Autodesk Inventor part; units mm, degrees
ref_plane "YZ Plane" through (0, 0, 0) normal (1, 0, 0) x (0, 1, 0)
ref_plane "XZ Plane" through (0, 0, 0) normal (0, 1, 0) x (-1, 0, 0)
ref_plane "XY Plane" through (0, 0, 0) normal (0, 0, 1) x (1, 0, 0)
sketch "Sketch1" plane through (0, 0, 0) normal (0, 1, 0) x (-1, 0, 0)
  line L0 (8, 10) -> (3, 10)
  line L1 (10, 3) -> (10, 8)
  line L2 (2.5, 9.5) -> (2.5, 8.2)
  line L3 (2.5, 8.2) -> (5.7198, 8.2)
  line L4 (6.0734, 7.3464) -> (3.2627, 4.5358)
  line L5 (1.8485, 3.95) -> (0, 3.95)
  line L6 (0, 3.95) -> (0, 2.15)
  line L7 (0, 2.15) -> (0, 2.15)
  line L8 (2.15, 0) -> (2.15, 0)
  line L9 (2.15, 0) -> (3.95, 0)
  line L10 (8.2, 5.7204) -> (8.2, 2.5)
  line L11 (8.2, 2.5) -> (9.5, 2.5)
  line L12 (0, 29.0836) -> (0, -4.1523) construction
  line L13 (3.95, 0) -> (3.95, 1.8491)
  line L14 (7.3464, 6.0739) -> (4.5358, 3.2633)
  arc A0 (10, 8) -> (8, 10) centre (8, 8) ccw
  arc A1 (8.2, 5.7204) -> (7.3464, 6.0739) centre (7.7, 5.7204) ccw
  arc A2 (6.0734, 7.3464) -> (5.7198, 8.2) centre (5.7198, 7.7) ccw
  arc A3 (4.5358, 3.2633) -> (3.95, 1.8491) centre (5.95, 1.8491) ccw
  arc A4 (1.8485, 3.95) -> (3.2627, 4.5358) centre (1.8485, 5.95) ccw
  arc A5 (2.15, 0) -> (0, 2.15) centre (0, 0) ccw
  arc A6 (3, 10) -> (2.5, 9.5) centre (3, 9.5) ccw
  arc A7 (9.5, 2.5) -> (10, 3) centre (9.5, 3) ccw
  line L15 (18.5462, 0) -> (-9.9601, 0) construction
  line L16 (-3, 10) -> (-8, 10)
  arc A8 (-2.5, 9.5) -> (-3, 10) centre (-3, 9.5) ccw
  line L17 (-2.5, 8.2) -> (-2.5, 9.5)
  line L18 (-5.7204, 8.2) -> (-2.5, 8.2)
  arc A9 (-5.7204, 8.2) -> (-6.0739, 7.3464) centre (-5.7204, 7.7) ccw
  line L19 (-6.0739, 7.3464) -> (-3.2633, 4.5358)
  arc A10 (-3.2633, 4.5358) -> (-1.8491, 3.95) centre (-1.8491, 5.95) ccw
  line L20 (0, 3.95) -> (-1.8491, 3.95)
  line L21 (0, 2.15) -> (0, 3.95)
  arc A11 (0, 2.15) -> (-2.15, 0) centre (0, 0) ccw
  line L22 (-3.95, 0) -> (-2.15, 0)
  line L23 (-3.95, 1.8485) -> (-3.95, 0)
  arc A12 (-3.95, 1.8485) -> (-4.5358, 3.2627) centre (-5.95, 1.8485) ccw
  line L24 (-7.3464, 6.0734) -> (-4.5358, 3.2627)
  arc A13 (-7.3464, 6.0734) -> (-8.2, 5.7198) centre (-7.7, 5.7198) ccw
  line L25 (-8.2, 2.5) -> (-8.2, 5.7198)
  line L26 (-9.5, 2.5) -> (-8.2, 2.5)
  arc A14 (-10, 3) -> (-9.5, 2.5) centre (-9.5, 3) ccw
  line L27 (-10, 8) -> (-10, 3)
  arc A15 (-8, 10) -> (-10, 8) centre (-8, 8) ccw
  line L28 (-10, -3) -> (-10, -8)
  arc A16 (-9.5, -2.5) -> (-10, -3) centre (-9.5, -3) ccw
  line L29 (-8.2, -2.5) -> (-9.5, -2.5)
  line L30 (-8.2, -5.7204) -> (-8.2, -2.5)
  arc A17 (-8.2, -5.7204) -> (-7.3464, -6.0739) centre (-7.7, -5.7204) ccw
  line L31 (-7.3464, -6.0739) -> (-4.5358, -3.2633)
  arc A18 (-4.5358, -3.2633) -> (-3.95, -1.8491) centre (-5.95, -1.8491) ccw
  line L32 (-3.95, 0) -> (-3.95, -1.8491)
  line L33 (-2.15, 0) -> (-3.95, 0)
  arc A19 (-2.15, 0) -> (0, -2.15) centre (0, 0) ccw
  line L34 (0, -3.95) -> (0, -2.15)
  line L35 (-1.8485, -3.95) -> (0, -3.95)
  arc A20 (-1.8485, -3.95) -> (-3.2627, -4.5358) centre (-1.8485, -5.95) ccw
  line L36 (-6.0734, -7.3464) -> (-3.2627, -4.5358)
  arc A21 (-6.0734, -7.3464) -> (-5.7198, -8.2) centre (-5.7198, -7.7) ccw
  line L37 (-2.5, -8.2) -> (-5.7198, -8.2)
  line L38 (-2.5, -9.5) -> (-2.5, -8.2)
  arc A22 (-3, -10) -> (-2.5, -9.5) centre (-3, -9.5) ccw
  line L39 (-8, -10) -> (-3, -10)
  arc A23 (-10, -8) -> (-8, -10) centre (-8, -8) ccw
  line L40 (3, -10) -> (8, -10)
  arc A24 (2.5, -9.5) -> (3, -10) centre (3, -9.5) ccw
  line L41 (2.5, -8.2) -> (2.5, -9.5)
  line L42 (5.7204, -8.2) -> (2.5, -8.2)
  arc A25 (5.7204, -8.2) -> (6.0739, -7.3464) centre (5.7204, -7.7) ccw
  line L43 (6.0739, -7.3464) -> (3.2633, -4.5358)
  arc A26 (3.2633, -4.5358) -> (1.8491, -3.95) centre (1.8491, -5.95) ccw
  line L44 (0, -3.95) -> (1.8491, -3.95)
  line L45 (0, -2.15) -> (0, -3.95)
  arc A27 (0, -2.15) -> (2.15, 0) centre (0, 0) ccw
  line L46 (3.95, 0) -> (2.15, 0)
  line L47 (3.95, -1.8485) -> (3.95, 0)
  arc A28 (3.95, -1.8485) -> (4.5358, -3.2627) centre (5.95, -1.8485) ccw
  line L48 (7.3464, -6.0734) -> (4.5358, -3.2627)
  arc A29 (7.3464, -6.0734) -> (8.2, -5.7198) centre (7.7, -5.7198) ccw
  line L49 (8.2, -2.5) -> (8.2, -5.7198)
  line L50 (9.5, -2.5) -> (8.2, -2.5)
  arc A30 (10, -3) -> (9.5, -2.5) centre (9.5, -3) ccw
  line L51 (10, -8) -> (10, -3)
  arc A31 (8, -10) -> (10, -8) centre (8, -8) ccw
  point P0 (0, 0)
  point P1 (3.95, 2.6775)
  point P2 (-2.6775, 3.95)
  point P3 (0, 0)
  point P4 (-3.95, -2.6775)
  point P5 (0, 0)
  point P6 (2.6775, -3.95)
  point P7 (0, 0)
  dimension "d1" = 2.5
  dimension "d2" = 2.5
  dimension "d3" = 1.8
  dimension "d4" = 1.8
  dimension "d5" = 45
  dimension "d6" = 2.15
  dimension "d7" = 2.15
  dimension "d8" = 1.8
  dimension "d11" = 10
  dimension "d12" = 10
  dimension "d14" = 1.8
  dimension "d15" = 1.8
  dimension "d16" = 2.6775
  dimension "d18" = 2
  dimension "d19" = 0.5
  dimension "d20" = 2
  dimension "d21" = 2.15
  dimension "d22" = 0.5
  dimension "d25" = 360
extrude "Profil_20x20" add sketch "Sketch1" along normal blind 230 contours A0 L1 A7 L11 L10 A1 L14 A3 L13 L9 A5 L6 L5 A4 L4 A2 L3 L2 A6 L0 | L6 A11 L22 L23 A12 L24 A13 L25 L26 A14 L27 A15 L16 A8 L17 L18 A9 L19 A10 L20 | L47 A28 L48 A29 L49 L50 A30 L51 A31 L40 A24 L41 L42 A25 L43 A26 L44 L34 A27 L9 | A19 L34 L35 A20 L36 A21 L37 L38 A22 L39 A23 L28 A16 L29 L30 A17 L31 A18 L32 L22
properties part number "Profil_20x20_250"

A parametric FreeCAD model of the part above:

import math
import FreeCAD as App
import Part
import Sketcher
Q = App.Units.Quantity

doc = App.newDocument("Part")
body = doc.addObject("PartDesign::Body", "Body")

sketch1 = body.newObject("Sketcher::SketchObject", "Sketch")
sketch1.AttachmentSupport = (doc.getObject("XZ_Plane"), [""])
sketch1.MapMode = "FlatFace"
sketch1.addGeometry([
    Part.ArcOfCircle(Part.Circle(App.Vector(-8, 8, 0), App.Vector(0, 0, 1), 2), math.radians(90), math.radians(180)),
    Part.LineSegment(App.Vector(-8, 10, 0), App.Vector(-3, 10, 0)),
    Part.ArcOfCircle(Part.Circle(App.Vector(-3, 9.5, 0), App.Vector(0, 0, 1), 0.5), math.radians(0), math.radians(90)),
    Part.LineSegment(App.Vector(-2.5, 9.5, 0), App.Vector(-2.5, 8.2, 0)),
    Part.LineSegment(App.Vector(-2.5, 8.2, 0), App.Vector(-5.72, 8.2, 0)),
    Part.ArcOfCircle(Part.Circle(App.Vector(-5.72, 7.7, 0), App.Vector(0, 0, 1), 0.5), math.radians(90), math.radians(225)),
    Part.LineSegment(App.Vector(-6.07, 7.35, 0), App.Vector(-3.26, 4.54, 0)),
    Part.ArcOfCircle(Part.Circle(App.Vector(-1.85, 5.95, 0), App.Vector(0, 0, 1), 2), math.radians(-135), math.radians(-90)),
    Part.LineSegment(App.Vector(-1.85, 3.95, 0), App.Vector(1.85, 3.95, 0)),
    Part.ArcOfCircle(Part.Circle(App.Vector(1.85, 5.95, 0), App.Vector(0, 0, 1), 2), math.radians(-90), math.radians(-45)),
    Part.LineSegment(App.Vector(3.26, 4.54, 0), App.Vector(6.07, 7.35, 0)),
    Part.ArcOfCircle(Part.Circle(App.Vector(5.72, 7.7, 0), App.Vector(0, 0, 1), 0.5), math.radians(-45), math.radians(90)),
    Part.LineSegment(App.Vector(5.72, 8.2, 0), App.Vector(2.5, 8.2, 0)),
    Part.LineSegment(App.Vector(2.5, 8.2, 0), App.Vector(2.5, 9.5, 0)),
    Part.ArcOfCircle(Part.Circle(App.Vector(3, 9.5, 0), App.Vector(0, 0, 1), 0.5), math.radians(90), math.radians(180)),
    Part.LineSegment(App.Vector(3, 10, 0), App.Vector(8, 10, 0)),
    Part.ArcOfCircle(Part.Circle(App.Vector(8, 8, 0), App.Vector(0, 0, 1), 2), math.radians(0), math.radians(90)),
    Part.LineSegment(App.Vector(10, 8, 0), App.Vector(10, 3, 0)),
    Part.ArcOfCircle(Part.Circle(App.Vector(9.5, 3, 0), App.Vector(0, 0, 1), 0.5), math.radians(-90), math.radians(0)),
    Part.LineSegment(App.Vector(9.5, 2.5, 0), App.Vector(8.2, 2.5, 0)),
    Part.LineSegment(App.Vector(8.2, 2.5, 0), App.Vector(8.2, 5.72, 0)),
    Part.ArcOfCircle(Part.Circle(App.Vector(7.7, 5.72, 0), App.Vector(0, 0, 1), 0.5), math.radians(0), math.radians(135)),
    Part.LineSegment(App.Vector(7.35, 6.07, 0), App.Vector(4.54, 3.26, 0)),
    Part.ArcOfCircle(Part.Circle(App.Vector(5.95, 1.85, 0), App.Vector(0, 0, 1), 2), math.radians(135), math.radians(180)),
    Part.LineSegment(App.Vector(3.95, 1.85, 0), App.Vector(3.95, -1.85, 0)),
    Part.ArcOfCircle(Part.Circle(App.Vector(5.95, -1.85, 0), App.Vector(0, 0, 1), 2), math.radians(180), math.radians(225)),
    Part.LineSegment(App.Vector(4.54, -3.26, 0), App.Vector(7.35, -6.07, 0)),
    Part.ArcOfCircle(Part.Circle(App.Vector(7.7, -5.72, 0), App.Vector(0, 0, 1), 0.5), math.radians(-135), math.radians(0)),
    Part.LineSegment(App.Vector(8.2, -5.72, 0), App.Vector(8.2, -2.5, 0)),
    Part.LineSegment(App.Vector(8.2, -2.5, 0), App.Vector(9.5, -2.5, 0)),
    Part.ArcOfCircle(Part.Circle(App.Vector(9.5, -3, 0), App.Vector(0, 0, 1), 0.5), math.radians(0), math.radians(90)),
    Part.LineSegment(App.Vector(10, -3, 0), App.Vector(10, -8, 0)),
    Part.ArcOfCircle(Part.Circle(App.Vector(8, -8, 0), App.Vector(0, 0, 1), 2), math.radians(-90), math.radians(0)),
    Part.LineSegment(App.Vector(8, -10, 0), App.Vector(3, -10, 0)),
    Part.ArcOfCircle(Part.Circle(App.Vector(3, -9.5, 0), App.Vector(0, 0, 1), 0.5), math.radians(180), math.radians(270)),
    Part.LineSegment(App.Vector(2.5, -9.5, 0), App.Vector(2.5, -8.2, 0)),
    Part.LineSegment(App.Vector(2.5, -8.2, 0), App.Vector(5.72, -8.2, 0)),
    Part.ArcOfCircle(Part.Circle(App.Vector(5.72, -7.7, 0), App.Vector(0, 0, 1), 0.5), math.radians(-90), math.radians(45)),
    Part.LineSegment(App.Vector(6.07, -7.35, 0), App.Vector(3.26, -4.54, 0)),
    Part.ArcOfCircle(Part.Circle(App.Vector(1.85, -5.95, 0), App.Vector(0, 0, 1), 2), math.radians(45), math.radians(90)),
    Part.LineSegment(App.Vector(1.85, -3.95, 0), App.Vector(-1.85, -3.95, 0)),
    Part.ArcOfCircle(Part.Circle(App.Vector(-1.85, -5.95, 0), App.Vector(0, 0, 1), 2), math.radians(90), math.radians(135)),
    Part.LineSegment(App.Vector(-3.26, -4.54, 0), App.Vector(-6.07, -7.35, 0)),
    Part.ArcOfCircle(Part.Circle(App.Vector(-5.72, -7.7, 0), App.Vector(0, 0, 1), 0.5), math.radians(135), math.radians(270)),
    Part.LineSegment(App.Vector(-5.72, -8.2, 0), App.Vector(-2.5, -8.2, 0)),
    Part.LineSegment(App.Vector(-2.5, -8.2, 0), App.Vector(-2.5, -9.5, 0)),
    Part.ArcOfCircle(Part.Circle(App.Vector(-3, -9.5, 0), App.Vector(0, 0, 1), 0.5), math.radians(-90), math.radians(0)),
    Part.LineSegment(App.Vector(-3, -10, 0), App.Vector(-8, -10, 0)),
    Part.ArcOfCircle(Part.Circle(App.Vector(-8, -8, 0), App.Vector(0, 0, 1), 2), math.radians(180), math.radians(270)),
    Part.LineSegment(App.Vector(-10, -8, 0), App.Vector(-10, -3, 0)),
    Part.ArcOfCircle(Part.Circle(App.Vector(-9.5, -3, 0), App.Vector(0, 0, 1), 0.5), math.radians(90), math.radians(180)),
    Part.LineSegment(App.Vector(-9.5, -2.5, 0), App.Vector(-8.2, -2.5, 0)),
    Part.LineSegment(App.Vector(-8.2, -2.5, 0), App.Vector(-8.2, -5.72, 0)),
    Part.ArcOfCircle(Part.Circle(App.Vector(-7.7, -5.72, 0), App.Vector(0, 0, 1), 0.5), math.radians(180), math.radians(315)),
    Part.LineSegment(App.Vector(-7.35, -6.07, 0), App.Vector(-4.54, -3.26, 0)),
    Part.ArcOfCircle(Part.Circle(App.Vector(-5.95, -1.85, 0), App.Vector(0, 0, 1), 2), math.radians(-45), math.radians(0)),
    Part.LineSegment(App.Vector(-3.95, -1.85, 0), App.Vector(-3.95, 1.85, 0)),
    Part.ArcOfCircle(Part.Circle(App.Vector(-5.95, 1.85, 0), App.Vector(0, 0, 1), 2), math.radians(0), math.radians(45)),
    Part.LineSegment(App.Vector(-4.54, 3.26, 0), App.Vector(-7.35, 6.07, 0)),
    Part.ArcOfCircle(Part.Circle(App.Vector(-7.7, 5.72, 0), App.Vector(0, 0, 1), 0.5), math.radians(45), math.radians(180)),
    Part.LineSegment(App.Vector(-8.2, 5.72, 0), App.Vector(-8.2, 2.5, 0)),
    Part.LineSegment(App.Vector(-8.2, 2.5, 0), App.Vector(-9.5, 2.5, 0)),
    Part.ArcOfCircle(Part.Circle(App.Vector(-9.5, 3, 0), App.Vector(0, 0, 1), 0.5), math.radians(180), math.radians(270)),
    Part.LineSegment(App.Vector(-10, 3, 0), App.Vector(-10, 8, 0)),
    Part.Circle(App.Vector(0, 0, 0), App.Vector(0, 0, 1), 2.15),
], False)
sketch1.addConstraint([
    Sketcher.Constraint("Tangent", 0, 1, 1, 1),
    Sketcher.Constraint("Tangent", 1, 2, 2, 2),
    Sketcher.Constraint("Tangent", 2, 1, 3, 1),
    Sketcher.Constraint("Coincident", 3, 2, 4, 1),
    Sketcher.Constraint("Tangent", 4, 2, 5, 1),
    Sketcher.Constraint("Tangent", 5, 2, 6, 1),
    Sketcher.Constraint("Tangent", 6, 2, 7, 1),
    Sketcher.Constraint("Tangent", 7, 2, 8, 1),
    Sketcher.Constraint("Tangent", 8, 2, 9, 1),
    Sketcher.Constraint("Tangent", 9, 2, 10, 1),
    Sketcher.Constraint("Tangent", 10, 2, 11, 1),
    Sketcher.Constraint("Tangent", 11, 2, 12, 1),
    Sketcher.Constraint("Coincident", 12, 2, 13, 1),
    Sketcher.Constraint("Tangent", 13, 2, 14, 2),
    Sketcher.Constraint("Tangent", 14, 1, 15, 1),
    Sketcher.Constraint("Tangent", 15, 2, 16, 2),
    Sketcher.Constraint("Tangent", 16, 1, 17, 1),
    Sketcher.Constraint("Tangent", 17, 2, 18, 2),
    Sketcher.Constraint("Tangent", 18, 1, 19, 1),
    Sketcher.Constraint("Coincident", 19, 2, 20, 1),
    Sketcher.Constraint("Tangent", 20, 2, 21, 1),
    Sketcher.Constraint("Tangent", 21, 2, 22, 1),
    Sketcher.Constraint("Tangent", 22, 2, 23, 1),
    Sketcher.Constraint("Tangent", 23, 2, 24, 1),
    Sketcher.Constraint("Tangent", 24, 2, 25, 1),
    Sketcher.Constraint("Tangent", 25, 2, 26, 1),
    Sketcher.Constraint("Tangent", 26, 2, 27, 1),
    Sketcher.Constraint("Tangent", 27, 2, 28, 1),
    Sketcher.Constraint("Coincident", 28, 2, 29, 1),
    Sketcher.Constraint("Tangent", 29, 2, 30, 2),
    Sketcher.Constraint("Tangent", 30, 1, 31, 1),
    Sketcher.Constraint("Tangent", 31, 2, 32, 2),
    Sketcher.Constraint("Tangent", 32, 1, 33, 1),
    Sketcher.Constraint("Tangent", 33, 2, 34, 2),
    Sketcher.Constraint("Tangent", 34, 1, 35, 1),
    Sketcher.Constraint("Coincident", 35, 2, 36, 1),
    Sketcher.Constraint("Tangent", 36, 2, 37, 1),
    Sketcher.Constraint("Tangent", 37, 2, 38, 1),
    Sketcher.Constraint("Tangent", 38, 2, 39, 1),
    Sketcher.Constraint("Tangent", 39, 2, 40, 1),
    Sketcher.Constraint("Tangent", 40, 2, 41, 1),
    Sketcher.Constraint("Tangent", 41, 2, 42, 1),
    Sketcher.Constraint("Tangent", 42, 2, 43, 1),
    Sketcher.Constraint("Tangent", 43, 2, 44, 1),
    Sketcher.Constraint("Coincident", 44, 2, 45, 1),
    Sketcher.Constraint("Tangent", 45, 2, 46, 2),
    Sketcher.Constraint("Tangent", 46, 1, 47, 1),
    Sketcher.Constraint("Tangent", 47, 2, 48, 2),
    Sketcher.Constraint("Tangent", 48, 1, 49, 1),
    Sketcher.Constraint("Tangent", 49, 2, 50, 2),
    Sketcher.Constraint("Tangent", 50, 1, 51, 1),
    Sketcher.Constraint("Coincident", 51, 2, 52, 1),
    Sketcher.Constraint("Tangent", 52, 2, 53, 1),
    Sketcher.Constraint("Tangent", 53, 2, 54, 1),
    Sketcher.Constraint("Tangent", 54, 2, 55, 1),
    Sketcher.Constraint("Tangent", 55, 2, 56, 1),
    Sketcher.Constraint("Tangent", 56, 2, 57, 1),
    Sketcher.Constraint("Tangent", 57, 2, 58, 1),
    Sketcher.Constraint("Tangent", 58, 2, 59, 1),
    Sketcher.Constraint("Tangent", 59, 2, 60, 1),
    Sketcher.Constraint("Coincident", 60, 2, 61, 1),
    Sketcher.Constraint("Tangent", 61, 2, 62, 2),
    Sketcher.Constraint("Tangent", 62, 1, 63, 1),
    Sketcher.Constraint("Tangent", 63, 2, 0, 2),
    Sketcher.Constraint("Horizontal", 1),
    Sketcher.Constraint("Vertical", 3),
    Sketcher.Constraint("Horizontal", 4),
    Sketcher.Constraint("Horizontal", 8),
    Sketcher.Constraint("Horizontal", 12),
    Sketcher.Constraint("Vertical", 13),
    Sketcher.Constraint("Horizontal", 15),
    Sketcher.Constraint("Vertical", 17),
    Sketcher.Constraint("Horizontal", 19),
    Sketcher.Constraint("Vertical", 20),
    Sketcher.Constraint("Vertical", 24),
    Sketcher.Constraint("Vertical", 28),
    Sketcher.Constraint("Horizontal", 29),
    Sketcher.Constraint("Vertical", 31),
    Sketcher.Constraint("Horizontal", 33),
    Sketcher.Constraint("Vertical", 35),
    Sketcher.Constraint("Horizontal", 36),
    Sketcher.Constraint("Horizontal", 40),
    Sketcher.Constraint("Horizontal", 44),
    Sketcher.Constraint("Vertical", 45),
    Sketcher.Constraint("Horizontal", 47),
    Sketcher.Constraint("Vertical", 49),
    Sketcher.Constraint("Horizontal", 51),
    Sketcher.Constraint("Vertical", 52),
    Sketcher.Constraint("Vertical", 56),
    Sketcher.Constraint("Vertical", 60),
    Sketcher.Constraint("Horizontal", 61),
    Sketcher.Constraint("Vertical", 63),
    Sketcher.Constraint("Coincident", 64, 3, -1, 1),
    Sketcher.Constraint("Equal", 2, 5),
    Sketcher.Constraint("Equal", 0, 7),
    Sketcher.Constraint("Equal", 7, 9),
    Sketcher.Constraint("Equal", 5, 11),
    Sketcher.Constraint("Equal", 11, 14),
    Sketcher.Constraint("Equal", 9, 16),
    Sketcher.Constraint("Equal", 14, 18),
    Sketcher.Constraint("Equal", 18, 21),
    Sketcher.Constraint("Equal", 16, 23),
    Sketcher.Constraint("Equal", 23, 25),
    Sketcher.Constraint("Equal", 21, 27),
    Sketcher.Constraint("Equal", 27, 30),
    Sketcher.Constraint("Equal", 25, 32),
    Sketcher.Constraint("Equal", 30, 34),
    Sketcher.Constraint("Equal", 34, 37),
    Sketcher.Constraint("Equal", 32, 39),
    Sketcher.Constraint("Equal", 39, 41),
    Sketcher.Constraint("Equal", 37, 43),
    Sketcher.Constraint("Equal", 43, 46),
    Sketcher.Constraint("Equal", 41, 48),
    Sketcher.Constraint("Equal", 46, 50),
    Sketcher.Constraint("Equal", 50, 53),
    Sketcher.Constraint("Equal", 48, 55),
    Sketcher.Constraint("Equal", 55, 57),
    Sketcher.Constraint("Equal", 53, 59),
    Sketcher.Constraint("Equal", 59, 62),
    Sketcher.Constraint("Symmetric", 0, 3, 32, 3, -1, 1),
    Sketcher.Constraint("Symmetric", 5, 3, 37, 3, -1, 1),
    Sketcher.Constraint("Symmetric", 7, 3, 39, 3, -1, 1),
    Sketcher.Constraint("Symmetric", 11, 3, 43, 3, -1, 1),
    Sketcher.Constraint("Symmetric", 14, 3, 46, 3, -1, 1),
    Sketcher.Constraint("Symmetric", 18, 3, 50, 3, -1, 1),
    Sketcher.Constraint("Symmetric", 21, 3, 53, 3, -1, 1),
    Sketcher.Constraint("Symmetric", 23, 3, 55, 3, -1, 1),
    Sketcher.Constraint("Symmetric", 27, 3, 59, 3, -1, 1),
    Sketcher.Constraint("Symmetric", 2, 3, 14, 3, -2),
    Sketcher.Constraint("Symmetric", 30, 3, 50, 3, -2),
    Sketcher.Constraint("Symmetric", 35, 2, 44, 2, -2),
    Sketcher.Constraint("Symmetric", 19, 2, 60, 2, -2),
    Sketcher.Constraint("Perpendicular", 6, 10),
    Sketcher.Constraint("Parallel", 10, 22),
    Sketcher.Constraint("Perpendicular", 22, 26),
    Sketcher.Constraint("Perpendicular", 38, 42),
    Sketcher.Constraint("Perpendicular", 54, 58),
    Sketcher.Constraint("Horizontal", 6, 2, 9, 2),
    Sketcher.Constraint("Equal", 61, 3),
    Sketcher.Constraint("Equal", 47, 17),
    Sketcher.Constraint("Equal", 36, 20),
    Sketcher.Constraint("Equal", 40, 24),
    Sketcher.Constraint("Equal", 44, 28),
    Sketcher.Constraint("Equal", 10, 22),
    Sketcher.Constraint("Radius", 0, Q("2 mm")),
    Sketcher.Constraint("Diameter", 64, Q("4.3 mm")),
    Sketcher.Constraint("Radius", 2, Q("0.5 mm")),
    Sketcher.Constraint("DistanceY", -1, 1, 0, 1, Q("10 mm")),
    Sketcher.Constraint("DistanceX", 2, 1, -1, 1, Q("2.5 mm")),
    Sketcher.Constraint("DistanceX", 19, 2, 19, 1, Q("1.3 mm")),
    Sketcher.Constraint("DistanceY", -1, 1, 7, 3, Q("5.95 mm")),
    Sketcher.Constraint("DistanceX", 4, 2, 4, 1, Q("3.2198 mm")),
    Sketcher.Constraint("DistanceX", 8, 1, 8, 2, Q("3.6976 mm")),
])
pad1 = body.newObject("PartDesign::Pad", "Pad")
pad1.Profile = sketch1
pad1.Length = 230
pad1.Reversed = True

doc.recompute()
